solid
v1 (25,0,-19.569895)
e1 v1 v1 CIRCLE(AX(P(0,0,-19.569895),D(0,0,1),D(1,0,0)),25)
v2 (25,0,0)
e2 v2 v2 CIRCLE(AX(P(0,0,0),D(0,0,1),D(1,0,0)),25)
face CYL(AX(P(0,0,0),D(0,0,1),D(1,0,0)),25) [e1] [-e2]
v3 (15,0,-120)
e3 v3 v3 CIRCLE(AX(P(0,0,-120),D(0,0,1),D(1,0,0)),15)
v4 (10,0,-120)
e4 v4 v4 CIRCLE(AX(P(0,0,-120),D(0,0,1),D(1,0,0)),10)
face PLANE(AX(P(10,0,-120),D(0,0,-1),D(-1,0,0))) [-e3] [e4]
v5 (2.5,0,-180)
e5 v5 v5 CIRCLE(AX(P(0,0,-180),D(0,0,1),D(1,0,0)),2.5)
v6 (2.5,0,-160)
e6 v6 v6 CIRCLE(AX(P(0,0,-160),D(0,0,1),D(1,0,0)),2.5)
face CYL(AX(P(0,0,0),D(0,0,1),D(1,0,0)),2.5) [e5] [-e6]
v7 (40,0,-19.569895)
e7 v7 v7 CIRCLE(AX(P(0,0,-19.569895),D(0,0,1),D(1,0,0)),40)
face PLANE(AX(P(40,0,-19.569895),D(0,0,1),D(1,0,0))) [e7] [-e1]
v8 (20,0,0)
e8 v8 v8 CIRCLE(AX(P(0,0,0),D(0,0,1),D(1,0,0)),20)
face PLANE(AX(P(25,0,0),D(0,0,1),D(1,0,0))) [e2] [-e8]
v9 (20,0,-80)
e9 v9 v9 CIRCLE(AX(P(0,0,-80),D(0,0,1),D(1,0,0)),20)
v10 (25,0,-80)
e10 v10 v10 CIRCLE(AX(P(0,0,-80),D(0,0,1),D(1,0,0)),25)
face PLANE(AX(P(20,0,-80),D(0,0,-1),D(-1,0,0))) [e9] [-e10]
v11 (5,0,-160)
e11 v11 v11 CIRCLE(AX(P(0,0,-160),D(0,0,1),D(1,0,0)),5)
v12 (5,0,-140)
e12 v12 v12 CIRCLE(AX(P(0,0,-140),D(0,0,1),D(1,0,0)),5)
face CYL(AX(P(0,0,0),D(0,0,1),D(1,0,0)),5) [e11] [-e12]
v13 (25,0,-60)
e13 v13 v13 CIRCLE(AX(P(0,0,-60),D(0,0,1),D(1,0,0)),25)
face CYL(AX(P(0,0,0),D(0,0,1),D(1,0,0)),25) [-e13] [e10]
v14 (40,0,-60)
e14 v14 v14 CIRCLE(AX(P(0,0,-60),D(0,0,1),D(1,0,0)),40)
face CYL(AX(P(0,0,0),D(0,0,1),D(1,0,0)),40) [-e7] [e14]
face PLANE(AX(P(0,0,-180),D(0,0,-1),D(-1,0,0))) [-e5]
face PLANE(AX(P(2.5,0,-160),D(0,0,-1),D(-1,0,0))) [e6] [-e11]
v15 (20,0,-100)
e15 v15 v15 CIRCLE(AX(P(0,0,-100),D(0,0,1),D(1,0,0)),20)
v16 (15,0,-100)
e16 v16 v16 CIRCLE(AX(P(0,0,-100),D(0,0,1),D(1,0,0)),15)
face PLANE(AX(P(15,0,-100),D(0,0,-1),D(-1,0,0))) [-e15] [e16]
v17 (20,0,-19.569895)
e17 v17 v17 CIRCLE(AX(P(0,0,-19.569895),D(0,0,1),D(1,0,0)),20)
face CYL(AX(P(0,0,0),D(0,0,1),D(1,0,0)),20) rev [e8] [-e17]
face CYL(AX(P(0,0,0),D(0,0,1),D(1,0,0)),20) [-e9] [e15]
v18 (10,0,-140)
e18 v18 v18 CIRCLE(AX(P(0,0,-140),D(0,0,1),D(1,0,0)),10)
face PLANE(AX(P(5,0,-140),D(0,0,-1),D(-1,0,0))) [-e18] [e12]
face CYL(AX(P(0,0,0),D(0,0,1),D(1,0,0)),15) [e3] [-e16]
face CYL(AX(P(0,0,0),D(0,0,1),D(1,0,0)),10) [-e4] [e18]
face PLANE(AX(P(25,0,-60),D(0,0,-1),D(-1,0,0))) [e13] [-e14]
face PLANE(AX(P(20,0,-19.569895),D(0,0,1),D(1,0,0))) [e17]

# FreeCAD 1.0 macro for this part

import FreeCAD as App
import Part
import Sketcher

V = App.Vector
Q = App.Units.Quantity


def add_polygon(sketch, points):
    """Adds a closed chain of lines whose ends are joined by coincident constraints."""
    first, n = sketch.GeometryCount, len(points)
    for a, b in zip(points, points[1:] + points[:1]):
        sketch.addGeometry(Part.LineSegment(App.Vector(*a, 0), App.Vector(*b, 0)), False)
    for i in range(n):
        sketch.addConstraint(Sketcher.Constraint("Coincident", first + i, 2, first + (i + 1) % n, 1))

doc = App.newDocument("Part")
body = doc.addObject("PartDesign::Body", "Body")

# Sketch on XZ plane
sketch1 = body.newObject("Sketcher::SketchObject", "Sketch")
sketch1.AttachmentSupport = (doc.getObject("XZ_Plane"), [""])
sketch1.MapMode = "FlatFace"
add_polygon(sketch1, [(2.5, -180), (0, -180), (0, -19.6), (20, -19.6), (20, 0), (25, 0), (25, -19.6), (40, -19.6), (40, -60), (25, -60), (25, -80), (20, -80), (20, -100), (15, -100), (15, -120), (10, -120), (10, -140), (5, -140), (5, -160), (2.5, -160)])  # lines 0-19
sketch1.addConstraint(Sketcher.Constraint("Horizontal", 0))
sketch1.addConstraint(Sketcher.Constraint("Vertical", 1))
sketch1.addConstraint(Sketcher.Constraint("Horizontal", 2))
sketch1.addConstraint(Sketcher.Constraint("Vertical", 3))
sketch1.addConstraint(Sketcher.Constraint("Horizontal", 4))
sketch1.addConstraint(Sketcher.Constraint("Vertical", 5))
sketch1.addConstraint(Sketcher.Constraint("Horizontal", 6))
sketch1.addConstraint(Sketcher.Constraint("Vertical", 7))
sketch1.addConstraint(Sketcher.Constraint("Horizontal", 8))
sketch1.addConstraint(Sketcher.Constraint("Vertical", 9))
sketch1.addConstraint(Sketcher.Constraint("Horizontal", 10))
sketch1.addConstraint(Sketcher.Constraint("Vertical", 11))
sketch1.addConstraint(Sketcher.Constraint("Horizontal", 12))
sketch1.addConstraint(Sketcher.Constraint("Vertical", 13))
sketch1.addConstraint(Sketcher.Constraint("Horizontal", 14))
sketch1.addConstraint(Sketcher.Constraint("Vertical", 15))
sketch1.addConstraint(Sketcher.Constraint("Horizontal", 16))
sketch1.addConstraint(Sketcher.Constraint("Vertical", 17))
sketch1.addConstraint(Sketcher.Constraint("Horizontal", 18))
sketch1.addConstraint(Sketcher.Constraint("Vertical", 19))
sketch1.addConstraint(Sketcher.Constraint("PointOnObject", 0, 2, -2))
sketch1.addConstraint(Sketcher.Constraint("PointOnObject", 3, 2, -1))
sketch1.addConstraint(Sketcher.Constraint("Horizontal", 2, 2, 5, 2))
sketch1.addConstraint(Sketcher.Constraint("Vertical", 5, 2, 8, 2))
sketch1.addConstraint(Sketcher.Constraint("Vertical", 3, 2, 10, 2))
sketch1.addConstraint(Sketcher.Constraint("Equal", 10, 12))
sketch1.addConstraint(Sketcher.Constraint("Equal", 12, 14))
sketch1.addConstraint(Sketcher.Constraint("Equal", 14, 16))
sketch1.addConstraint(Sketcher.Constraint("Equal", 0, 18))
sketch1.addConstraint(Sketcher.Constraint("Equal", 2, 9))
sketch1.addConstraint(Sketcher.Constraint("Equal", 9, 11))
sketch1.addConstraint(Sketcher.Constraint("Equal", 11, 13))
sketch1.addConstraint(Sketcher.Constraint("Equal", 13, 15))
sketch1.addConstraint(Sketcher.Constraint("Equal", 15, 17))
sketch1.addConstraint(Sketcher.Constraint("Equal", 17, 19))
sketch1.addConstraint(Sketcher.Constraint("DistanceX", 2, 1, 2, 2, Q("20 mm")))
sketch1.addConstraint(Sketcher.Constraint("DistanceX", 4, 1, 4, 2, Q("5 mm")))
sketch1.addConstraint(Sketcher.Constraint("DistanceX", 6, 1, 6, 2, Q("15 mm")))
sketch1.addConstraint(Sketcher.Constraint("DistanceY", 0, 2, -1, 1, Q("180 mm")))
sketch1.addConstraint(Sketcher.Constraint("DistanceY", 1, 1, 1, 2, Q("160.430105 mm")))
revolution = body.newObject("PartDesign::Revolution", "Revolution")
revolution.Profile = sketch1
revolution.ReferenceAxis = (sketch1, ["V_Axis"])
revolution.Angle = 360

doc.recompute()
